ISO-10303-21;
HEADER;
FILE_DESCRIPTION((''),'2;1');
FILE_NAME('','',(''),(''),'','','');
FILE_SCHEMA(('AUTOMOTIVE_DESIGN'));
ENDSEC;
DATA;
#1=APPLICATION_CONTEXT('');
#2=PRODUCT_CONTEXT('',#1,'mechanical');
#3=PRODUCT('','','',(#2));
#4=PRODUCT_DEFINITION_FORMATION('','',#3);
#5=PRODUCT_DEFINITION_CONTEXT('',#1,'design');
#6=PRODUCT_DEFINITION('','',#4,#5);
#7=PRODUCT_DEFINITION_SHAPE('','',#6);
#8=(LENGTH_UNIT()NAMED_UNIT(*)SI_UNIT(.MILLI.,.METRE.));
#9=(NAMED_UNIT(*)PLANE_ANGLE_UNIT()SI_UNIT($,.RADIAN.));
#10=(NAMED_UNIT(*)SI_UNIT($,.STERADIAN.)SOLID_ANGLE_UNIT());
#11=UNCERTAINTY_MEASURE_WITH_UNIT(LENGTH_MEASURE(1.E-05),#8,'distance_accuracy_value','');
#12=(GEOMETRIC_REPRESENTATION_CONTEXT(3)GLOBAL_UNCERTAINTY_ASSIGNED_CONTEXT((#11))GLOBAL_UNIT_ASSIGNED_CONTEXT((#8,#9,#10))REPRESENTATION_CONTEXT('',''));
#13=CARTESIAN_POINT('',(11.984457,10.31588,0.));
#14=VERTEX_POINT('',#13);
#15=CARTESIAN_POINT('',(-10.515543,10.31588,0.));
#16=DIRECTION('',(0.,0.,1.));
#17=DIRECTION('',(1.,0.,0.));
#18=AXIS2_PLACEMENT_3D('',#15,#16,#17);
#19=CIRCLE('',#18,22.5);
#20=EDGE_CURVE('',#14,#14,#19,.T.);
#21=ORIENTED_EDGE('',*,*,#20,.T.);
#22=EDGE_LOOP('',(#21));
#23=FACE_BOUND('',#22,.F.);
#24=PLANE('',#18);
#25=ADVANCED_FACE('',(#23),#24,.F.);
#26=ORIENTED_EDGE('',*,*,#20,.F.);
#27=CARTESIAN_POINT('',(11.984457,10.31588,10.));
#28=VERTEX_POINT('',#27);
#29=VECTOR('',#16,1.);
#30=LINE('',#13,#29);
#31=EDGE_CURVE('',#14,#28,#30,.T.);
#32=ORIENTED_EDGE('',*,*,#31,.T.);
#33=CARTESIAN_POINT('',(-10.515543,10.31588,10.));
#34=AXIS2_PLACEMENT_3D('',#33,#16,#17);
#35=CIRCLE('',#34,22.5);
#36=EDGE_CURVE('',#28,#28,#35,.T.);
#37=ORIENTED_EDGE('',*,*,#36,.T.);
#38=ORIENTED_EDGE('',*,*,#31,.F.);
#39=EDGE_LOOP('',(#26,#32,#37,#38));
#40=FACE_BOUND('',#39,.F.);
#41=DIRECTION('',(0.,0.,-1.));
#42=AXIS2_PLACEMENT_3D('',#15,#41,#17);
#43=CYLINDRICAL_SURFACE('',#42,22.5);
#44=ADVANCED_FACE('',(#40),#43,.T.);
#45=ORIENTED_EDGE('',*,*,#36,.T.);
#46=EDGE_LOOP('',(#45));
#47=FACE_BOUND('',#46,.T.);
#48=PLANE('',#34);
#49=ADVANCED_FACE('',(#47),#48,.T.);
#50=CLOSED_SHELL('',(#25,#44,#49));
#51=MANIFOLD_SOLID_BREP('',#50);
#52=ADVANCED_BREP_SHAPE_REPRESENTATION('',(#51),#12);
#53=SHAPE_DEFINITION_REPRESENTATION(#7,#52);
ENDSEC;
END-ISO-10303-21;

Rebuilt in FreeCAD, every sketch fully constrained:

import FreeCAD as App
import Part
import Sketcher

doc = App.newDocument("Part")
body = doc.addObject("PartDesign::Body", "Body")

# Sketch on XY plane
sketch1 = body.newObject("Sketcher::SketchObject", "Sketch")
sketch1.AttachmentSupport = (doc.getObject("XY_Plane"), [""])
sketch1.MapMode = "FlatFace"
sketch1.addGeometry(Part.Circle(App.Vector(-11, 10, 0), App.Vector(0, 0, 1), 22), False)
sketch1.addConstraint(Sketcher.Constraint("Diameter", 0, 45.0))
sketch1.addConstraint(Sketcher.Constraint("DistanceY", -1, 1, 0, 3, 10.31588))
sketch1.addConstraint(Sketcher.Constraint("DistanceX", 0, 3, -1, 1, 10.515543))
pad1 = body.newObject("PartDesign::Pad", "Pad")
pad1.Profile = sketch1
pad1.Length = 10

doc.recompute()
